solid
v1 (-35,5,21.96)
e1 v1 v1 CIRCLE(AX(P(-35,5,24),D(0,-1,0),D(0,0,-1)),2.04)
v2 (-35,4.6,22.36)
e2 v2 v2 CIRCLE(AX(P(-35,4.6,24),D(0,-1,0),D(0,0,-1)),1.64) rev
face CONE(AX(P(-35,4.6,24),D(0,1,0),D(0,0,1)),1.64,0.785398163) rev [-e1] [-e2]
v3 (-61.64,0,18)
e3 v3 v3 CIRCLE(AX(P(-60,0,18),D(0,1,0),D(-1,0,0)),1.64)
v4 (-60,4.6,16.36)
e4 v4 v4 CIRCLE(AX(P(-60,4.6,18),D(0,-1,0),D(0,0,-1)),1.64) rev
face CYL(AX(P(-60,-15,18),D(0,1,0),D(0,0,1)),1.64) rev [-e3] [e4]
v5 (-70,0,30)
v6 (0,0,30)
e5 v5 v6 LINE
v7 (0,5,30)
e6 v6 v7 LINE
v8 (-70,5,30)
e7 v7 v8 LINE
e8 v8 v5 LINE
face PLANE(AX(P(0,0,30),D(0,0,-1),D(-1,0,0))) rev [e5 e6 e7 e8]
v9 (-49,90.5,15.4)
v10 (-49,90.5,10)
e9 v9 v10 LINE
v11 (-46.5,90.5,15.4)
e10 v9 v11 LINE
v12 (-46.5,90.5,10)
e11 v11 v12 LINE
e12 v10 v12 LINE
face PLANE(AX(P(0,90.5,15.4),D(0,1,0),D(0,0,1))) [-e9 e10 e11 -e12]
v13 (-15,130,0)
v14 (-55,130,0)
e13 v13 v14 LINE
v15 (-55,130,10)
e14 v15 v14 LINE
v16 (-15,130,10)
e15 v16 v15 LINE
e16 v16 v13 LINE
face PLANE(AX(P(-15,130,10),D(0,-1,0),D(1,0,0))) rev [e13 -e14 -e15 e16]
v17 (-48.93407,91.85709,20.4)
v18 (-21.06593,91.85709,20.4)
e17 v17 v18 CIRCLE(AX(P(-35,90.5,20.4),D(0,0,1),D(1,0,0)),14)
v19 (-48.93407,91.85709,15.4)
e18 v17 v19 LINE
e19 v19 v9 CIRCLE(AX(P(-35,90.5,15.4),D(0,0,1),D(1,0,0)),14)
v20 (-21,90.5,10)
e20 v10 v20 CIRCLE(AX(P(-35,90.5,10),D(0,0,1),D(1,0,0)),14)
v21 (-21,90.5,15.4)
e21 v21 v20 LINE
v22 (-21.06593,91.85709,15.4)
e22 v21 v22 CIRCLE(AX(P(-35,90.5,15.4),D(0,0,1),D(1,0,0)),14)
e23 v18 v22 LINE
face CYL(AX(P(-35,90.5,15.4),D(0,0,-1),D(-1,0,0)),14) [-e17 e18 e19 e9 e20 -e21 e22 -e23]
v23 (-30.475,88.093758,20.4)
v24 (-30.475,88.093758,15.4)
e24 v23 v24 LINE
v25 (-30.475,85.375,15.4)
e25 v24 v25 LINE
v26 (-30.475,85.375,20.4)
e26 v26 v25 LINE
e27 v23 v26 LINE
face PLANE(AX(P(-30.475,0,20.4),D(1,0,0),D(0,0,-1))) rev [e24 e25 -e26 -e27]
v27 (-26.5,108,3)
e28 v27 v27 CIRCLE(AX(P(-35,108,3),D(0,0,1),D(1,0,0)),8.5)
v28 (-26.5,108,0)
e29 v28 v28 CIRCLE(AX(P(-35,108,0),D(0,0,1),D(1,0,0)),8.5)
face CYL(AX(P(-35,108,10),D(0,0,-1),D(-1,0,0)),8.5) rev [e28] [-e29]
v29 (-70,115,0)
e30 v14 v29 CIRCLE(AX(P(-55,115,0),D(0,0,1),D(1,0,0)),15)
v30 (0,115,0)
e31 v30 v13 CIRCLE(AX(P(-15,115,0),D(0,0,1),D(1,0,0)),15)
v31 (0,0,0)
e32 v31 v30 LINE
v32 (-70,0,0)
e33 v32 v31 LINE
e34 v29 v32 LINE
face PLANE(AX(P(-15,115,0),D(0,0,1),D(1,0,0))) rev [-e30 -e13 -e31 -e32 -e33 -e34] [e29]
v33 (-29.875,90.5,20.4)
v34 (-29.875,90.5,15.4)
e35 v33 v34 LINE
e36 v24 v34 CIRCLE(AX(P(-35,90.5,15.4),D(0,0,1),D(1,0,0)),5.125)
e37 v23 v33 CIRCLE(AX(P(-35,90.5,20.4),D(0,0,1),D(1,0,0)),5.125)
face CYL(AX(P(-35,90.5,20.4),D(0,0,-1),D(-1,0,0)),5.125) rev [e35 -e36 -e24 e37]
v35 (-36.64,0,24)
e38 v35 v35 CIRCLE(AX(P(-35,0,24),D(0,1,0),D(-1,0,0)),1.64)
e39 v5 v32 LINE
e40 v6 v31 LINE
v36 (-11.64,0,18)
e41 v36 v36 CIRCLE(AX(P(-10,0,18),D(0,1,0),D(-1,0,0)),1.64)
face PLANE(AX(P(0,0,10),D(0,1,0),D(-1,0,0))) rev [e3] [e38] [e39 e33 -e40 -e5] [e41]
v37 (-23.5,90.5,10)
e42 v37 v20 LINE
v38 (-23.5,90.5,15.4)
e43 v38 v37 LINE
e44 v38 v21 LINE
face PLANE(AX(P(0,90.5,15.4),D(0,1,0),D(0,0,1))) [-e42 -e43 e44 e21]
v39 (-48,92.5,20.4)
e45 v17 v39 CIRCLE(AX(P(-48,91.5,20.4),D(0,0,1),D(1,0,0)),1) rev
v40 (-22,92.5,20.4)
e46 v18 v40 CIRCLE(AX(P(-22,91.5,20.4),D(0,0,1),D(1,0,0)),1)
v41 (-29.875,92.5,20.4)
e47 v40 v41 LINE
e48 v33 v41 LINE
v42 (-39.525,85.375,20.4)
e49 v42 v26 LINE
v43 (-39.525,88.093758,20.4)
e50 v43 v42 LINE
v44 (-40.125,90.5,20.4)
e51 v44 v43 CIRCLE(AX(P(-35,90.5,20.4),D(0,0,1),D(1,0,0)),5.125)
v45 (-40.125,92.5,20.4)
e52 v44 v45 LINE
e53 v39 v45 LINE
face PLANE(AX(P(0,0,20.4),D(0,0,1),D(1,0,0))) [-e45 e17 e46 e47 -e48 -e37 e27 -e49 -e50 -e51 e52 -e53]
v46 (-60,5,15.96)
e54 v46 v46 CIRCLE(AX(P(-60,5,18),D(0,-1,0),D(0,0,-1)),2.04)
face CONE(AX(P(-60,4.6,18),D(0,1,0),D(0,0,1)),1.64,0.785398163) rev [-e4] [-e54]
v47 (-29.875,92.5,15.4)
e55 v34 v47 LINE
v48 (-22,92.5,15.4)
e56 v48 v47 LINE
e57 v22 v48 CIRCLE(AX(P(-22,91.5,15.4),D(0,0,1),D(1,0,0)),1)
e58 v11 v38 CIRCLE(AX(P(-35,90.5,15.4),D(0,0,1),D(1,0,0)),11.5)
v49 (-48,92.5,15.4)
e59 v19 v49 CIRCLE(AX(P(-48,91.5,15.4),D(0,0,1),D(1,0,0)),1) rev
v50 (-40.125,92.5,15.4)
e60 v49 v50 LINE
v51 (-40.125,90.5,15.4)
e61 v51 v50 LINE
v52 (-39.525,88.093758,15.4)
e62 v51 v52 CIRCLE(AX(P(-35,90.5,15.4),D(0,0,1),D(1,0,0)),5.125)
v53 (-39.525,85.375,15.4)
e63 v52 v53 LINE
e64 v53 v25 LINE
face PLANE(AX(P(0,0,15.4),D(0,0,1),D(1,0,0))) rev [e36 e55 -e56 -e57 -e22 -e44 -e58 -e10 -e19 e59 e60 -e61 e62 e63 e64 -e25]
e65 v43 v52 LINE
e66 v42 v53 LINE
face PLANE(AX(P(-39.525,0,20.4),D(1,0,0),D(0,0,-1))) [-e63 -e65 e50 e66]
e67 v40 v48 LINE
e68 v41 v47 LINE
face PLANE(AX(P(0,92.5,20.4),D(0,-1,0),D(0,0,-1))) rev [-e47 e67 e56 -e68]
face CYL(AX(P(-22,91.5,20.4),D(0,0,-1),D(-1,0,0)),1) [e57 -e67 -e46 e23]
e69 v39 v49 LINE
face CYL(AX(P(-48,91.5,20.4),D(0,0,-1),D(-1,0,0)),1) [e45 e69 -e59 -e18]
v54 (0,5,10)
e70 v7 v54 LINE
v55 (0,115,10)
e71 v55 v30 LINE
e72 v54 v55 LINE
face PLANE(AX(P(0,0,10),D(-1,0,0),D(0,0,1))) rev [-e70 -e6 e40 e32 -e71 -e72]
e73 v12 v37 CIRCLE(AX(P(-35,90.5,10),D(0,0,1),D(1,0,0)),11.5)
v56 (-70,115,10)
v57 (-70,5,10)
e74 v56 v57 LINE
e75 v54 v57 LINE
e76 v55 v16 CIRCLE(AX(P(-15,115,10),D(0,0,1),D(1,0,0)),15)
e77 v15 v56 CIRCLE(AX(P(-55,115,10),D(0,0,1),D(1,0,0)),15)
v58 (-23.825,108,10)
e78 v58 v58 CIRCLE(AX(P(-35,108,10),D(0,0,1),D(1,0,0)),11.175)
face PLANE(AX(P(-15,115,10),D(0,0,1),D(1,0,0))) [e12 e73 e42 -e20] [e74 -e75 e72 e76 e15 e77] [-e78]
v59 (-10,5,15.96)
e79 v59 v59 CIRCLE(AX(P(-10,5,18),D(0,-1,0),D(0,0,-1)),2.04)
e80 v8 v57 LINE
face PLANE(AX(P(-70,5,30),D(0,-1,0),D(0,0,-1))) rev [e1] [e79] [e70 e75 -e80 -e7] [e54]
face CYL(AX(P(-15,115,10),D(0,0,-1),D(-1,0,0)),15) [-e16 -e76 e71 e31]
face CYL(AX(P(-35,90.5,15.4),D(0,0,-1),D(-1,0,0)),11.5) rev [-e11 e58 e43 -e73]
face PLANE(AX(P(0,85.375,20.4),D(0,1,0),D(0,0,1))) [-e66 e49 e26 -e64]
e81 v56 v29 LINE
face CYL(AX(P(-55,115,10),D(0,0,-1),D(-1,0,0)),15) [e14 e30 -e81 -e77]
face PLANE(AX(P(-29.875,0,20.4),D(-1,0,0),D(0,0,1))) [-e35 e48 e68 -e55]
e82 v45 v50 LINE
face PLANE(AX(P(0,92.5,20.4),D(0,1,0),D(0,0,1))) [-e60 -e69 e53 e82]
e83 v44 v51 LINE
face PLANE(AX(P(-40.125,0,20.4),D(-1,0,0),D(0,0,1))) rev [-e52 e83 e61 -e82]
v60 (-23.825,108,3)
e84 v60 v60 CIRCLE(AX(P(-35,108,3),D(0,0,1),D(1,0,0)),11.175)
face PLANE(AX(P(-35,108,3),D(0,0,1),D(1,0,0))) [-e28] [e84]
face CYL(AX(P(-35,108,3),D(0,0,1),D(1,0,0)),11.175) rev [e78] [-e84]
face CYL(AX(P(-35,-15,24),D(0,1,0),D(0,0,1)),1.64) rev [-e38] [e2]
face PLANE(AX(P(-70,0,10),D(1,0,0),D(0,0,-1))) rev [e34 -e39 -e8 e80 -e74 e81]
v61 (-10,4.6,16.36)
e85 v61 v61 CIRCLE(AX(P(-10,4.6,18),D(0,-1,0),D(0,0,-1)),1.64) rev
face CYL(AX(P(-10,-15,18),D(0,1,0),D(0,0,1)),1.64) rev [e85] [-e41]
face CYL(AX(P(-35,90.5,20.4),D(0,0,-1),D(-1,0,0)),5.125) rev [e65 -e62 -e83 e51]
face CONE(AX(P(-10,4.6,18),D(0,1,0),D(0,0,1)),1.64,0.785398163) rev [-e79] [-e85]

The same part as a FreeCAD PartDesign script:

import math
import FreeCAD as App
import Part
import Sketcher
Q = App.Units.Quantity


def edges_at(feature, points):
    """Names of the edges that pass closest to the given points."""
    edges = feature.Shape.Edges
    near = lambda p: min(range(len(edges)), key=lambda i: edges[i].distToShape(Part.Vertex(*p))[0])
    return sorted({f"Edge{near(p) + 1}" for p in points})

doc = App.newDocument("Part")
params = doc.addObject("Spreadsheet::Sheet", "Params")
for row, (alias, value) in enumerate([
    ("sketch1_diameter", "17 mm"),
    ("sketch1_radius", "15 mm"),
    ("sketch1_width", "70 mm"),
    ("sketch1_height", "115 mm"),
    ("pad1_length", "10 mm"),
    ("sketch2_diameter", "22.35 mm"),
    ("pocket1_length", "7 mm"),
    ("sketch3_width", "70 mm"),
    ("sketch3_height", "5 mm"),
    ("pad2_length", "20 mm"),
    ("sketch4_diameter", "3.28 mm"),
    ("pocket2_length", "20 mm"),
    ("chamfer_size", "0.4 mm"),
    ("chamfer2_size", "0.4 mm"),
    ("sketch5_radius", "14 mm"),
    ("sketch5_radius2", "11.5 mm"),
    ("pad3_length", "5.4 mm"),
    ("sketch6_radius", "14 mm"),
    ("sketch6_radius2", "1 mm"),
    ("sketch6_height", "2 mm"),
    ("sketch6_width", "9.05 mm"),
    ("pad4_length", "5 mm"),
], start=1):
    params.set(f"A{row}", alias)
    params.set(f"B{row}", "=" + value)
    params.setAlias(f"B{row}", alias)

body = doc.addObject("PartDesign::Body", "Body")

# Sketch on XY plane
sketch1 = body.newObject("Sketcher::SketchObject", "Sketch")
sketch1.AttachmentSupport = (doc.getObject("XY_Plane"), [""])
sketch1.MapMode = "FlatFace"
sketch1.addGeometry(Part.LineSegment(App.Vector(-70, 0, 0), App.Vector(0, 0, 0)), False)
sketch1.addGeometry(Part.LineSegment(App.Vector(0, 0, 0), App.Vector(0, 115, 0)), False)
sketch1.addGeometry(Part.ArcOfCircle(Part.Circle(App.Vector(-15, 115, 0), App.Vector(0, 0, 1), 15), math.radians(0), math.radians(90)), False)
sketch1.addGeometry(Part.LineSegment(App.Vector(-15, 130, 0), App.Vector(-55, 130, 0)), False)
sketch1.addGeometry(Part.ArcOfCircle(Part.Circle(App.Vector(-55, 115, 0), App.Vector(0, 0, 1), 15), math.radians(90), math.radians(180)), False)
sketch1.addGeometry(Part.LineSegment(App.Vector(-70, 115, 0), App.Vector(-70, 0, 0)), False)
sketch1.addGeometry(Part.Circle(App.Vector(-35, 108, 0), App.Vector(0, 0, 1), 8), False)
sketch1.addConstraint(Sketcher.Constraint("Coincident", 0, 2, 1, 1))
sketch1.addConstraint(Sketcher.Constraint("Tangent", 1, 2, 2, 1))
sketch1.addConstraint(Sketcher.Constraint("Tangent", 2, 2, 3, 1))
sketch1.addConstraint(Sketcher.Constraint("Tangent", 3, 2, 4, 1))
sketch1.addConstraint(Sketcher.Constraint("Tangent", 4, 2, 5, 1))
sketch1.addConstraint(Sketcher.Constraint("Coincident", 5, 2, 0, 1))
sketch1.addConstraint(Sketcher.Constraint("Horizontal", 0))
sketch1.addConstraint(Sketcher.Constraint("Vertical", 1))
sketch1.addConstraint(Sketcher.Constraint("Horizontal", 3))
sketch1.addConstraint(Sketcher.Constraint("Vertical", 5))
sketch1.addConstraint(Sketcher.Constraint("Coincident", 0, 2, -1, 1))
sketch1.addConstraint(Sketcher.Constraint("Equal", 2, 4))
sketch1.addConstraint(Sketcher.Constraint("Diameter", 6, Q("17 mm")))
sketch1.addConstraint(Sketcher.Constraint("Radius", 2, Q("15 mm")))
sketch1.addConstraint(Sketcher.Constraint("DistanceX", 0, 1, 0, 2, Q("70 mm")))
sketch1.addConstraint(Sketcher.Constraint("DistanceY", 1, 1, 1, 2, Q("115 mm")))
sketch1.addConstraint(Sketcher.Constraint("DistanceX", 6, 3, -1, 1, Q("35 mm")))
sketch1.addConstraint(Sketcher.Constraint("DistanceY", -1, 1, 6, 3, Q("108 mm")))
sketch1.setExpression("Constraints[12]", "Params.sketch1_diameter")
sketch1.setExpression("Constraints[13]", "Params.sketch1_radius")
sketch1.setExpression("Constraints[14]", "Params.sketch1_width")
sketch1.setExpression("Constraints[15]", "Params.sketch1_height")
pad1 = body.newObject("PartDesign::Pad", "Pad")
pad1.Profile = sketch1
pad1.setExpression("Length", "Params.pad1_length")

# Sketch on XY plane
sketch2 = body.newObject("Sketcher::SketchObject", "Sketch001")
sketch2.AttachmentSupport = (doc.getObject("XY_Plane"), [""])
sketch2.MapMode = "FlatFace"
sketch2.AttachmentOffset = App.Placement(App.Vector(0, 0, 10), App.Rotation())
sketch2.addGeometry(Part.Circle(App.Vector(-35, 108, 0), App.Vector(0, 0, 1), 11), False)
sketch2.addConstraint(Sketcher.Constraint("Diameter", 0, Q("22.35 mm")))
sketch2.addConstraint(Sketcher.Constraint("DistanceX", 0, 3, -1, 1, Q("35 mm")))
sketch2.addConstraint(Sketcher.Constraint("DistanceY", -1, 1, 0, 3, Q("108 mm")))
sketch2.setExpression("Constraints[0]", "Params.sketch2_diameter")
pocket1 = body.newObject("PartDesign::Pocket", "Pocket")
pocket1.Profile = sketch2
pocket1.setExpression("Length", "Params.pocket1_length")

# Sketch on XY plane
sketch3 = body.newObject("Sketcher::SketchObject", "Sketch002")
sketch3.AttachmentSupport = (doc.getObject("XY_Plane"), [""])
sketch3.MapMode = "FlatFace"
sketch3.AttachmentOffset = App.Placement(App.Vector(0, 0, 10), App.Rotation())
sketch3.addGeometry(Part.LineSegment(App.Vector(-70, 5, 0), App.Vector(-70, 0, 0)), False)
sketch3.addGeometry(Part.LineSegment(App.Vector(-70, 0, 0), App.Vector(0, 0, 0)), False)
sketch3.addGeometry(Part.LineSegment(App.Vector(0, 0, 0), App.Vector(0, 5, 0)), False)
sketch3.addGeometry(Part.LineSegment(App.Vector(0, 5, 0), App.Vector(-70, 5, 0)), False)
sketch3.addConstraint(Sketcher.Constraint("Coincident", 0, 2, 1, 1))
sketch3.addConstraint(Sketcher.Constraint("Coincident", 1, 2, 2, 1))
sketch3.addConstraint(Sketcher.Constraint("Coincident", 2, 2, 3, 1))
sketch3.addConstraint(Sketcher.Constraint("Coincident", 3, 2, 0, 1))
sketch3.addConstraint(Sketcher.Constraint("Vertical", 0))
sketch3.addConstraint(Sketcher.Constraint("Horizontal", 1))
sketch3.addConstraint(Sketcher.Constraint("Vertical", 2))
sketch3.addConstraint(Sketcher.Constraint("Horizontal", 3))
sketch3.addConstraint(Sketcher.Constraint("Coincident", 1, 2, -1, 1))
sketch3.addConstraint(Sketcher.Constraint("DistanceX", 1, 1, 1, 2, Q("70 mm")))
sketch3.addConstraint(Sketcher.Constraint("DistanceY", 0, 2, 0, 1, Q("5 mm")))
sketch3.setExpression("Constraints[9]", "Params.sketch3_width")
sketch3.setExpression("Constraints[10]", "Params.sketch3_height")
pad2 = body.newObject("PartDesign::Pad", "Pad001")
pad2.Profile = sketch3
pad2.setExpression("Length", "Params.pad2_length")

# Sketch on XZ plane
sketch4 = body.newObject("Sketcher::SketchObject", "Sketch003")
sketch4.AttachmentSupport = (doc.getObject("XZ_Plane"), [""])
sketch4.MapMode = "FlatFace"
sketch4.AttachmentOffset = App.Placement(App.Vector(0, 0, -5), App.Rotation())
sketch4.addGeometry(Part.Circle(App.Vector(-60, 18, 0), App.Vector(0, 0, 1), 1.6), False)
sketch4.addGeometry(Part.Circle(App.Vector(-35, 24, 0), App.Vector(0, 0, 1), 1.6), False)
sketch4.addGeometry(Part.Circle(App.Vector(-10, 18, 0), App.Vector(0, 0, 1), 1.6), False)
sketch4.addConstraint(Sketcher.Constraint("Equal", 0, 1))
sketch4.addConstraint(Sketcher.Constraint("Equal", 1, 2))
sketch4.addConstraint(Sketcher.Constraint("Horizontal", 0, 3, 2, 3))
sketch4.addConstraint(Sketcher.Constraint("Diameter", 0, Q("3.28 mm")))
sketch4.addConstraint(Sketcher.Constraint("DistanceX", 0, 3, -1, 1, Q("60 mm")))
sketch4.addConstraint(Sketcher.Constraint("DistanceY", -1, 1, 0, 3, Q("18 mm")))
sketch4.addConstraint(Sketcher.Constraint("DistanceX", 1, 3, -1, 1, Q("35 mm")))
sketch4.addConstraint(Sketcher.Constraint("DistanceY", -1, 1, 1, 3, Q("24 mm")))
sketch4.addConstraint(Sketcher.Constraint("DistanceX", 2, 3, -1, 1, Q("10 mm")))
sketch4.setExpression("Constraints[3]", "Params.sketch4_diameter")
pocket2 = body.newObject("PartDesign::Pocket", "Pocket001")
pocket2.Profile = sketch4
pocket2.setExpression("Length", "Params.pocket2_length")
pocket2.Reversed = True
doc.recompute()

chamfer = body.newObject("PartDesign::Chamfer", "Chamfer")
chamfer.Base = (pocket2, edges_at(pocket2, [(-35, 5, 22.36)]))
chamfer.setExpression("Size", "Params.chamfer_size")
doc.recompute()

chamfer2 = body.newObject("PartDesign::Chamfer", "Chamfer001")
chamfer2.Base = (chamfer, edges_at(chamfer, [(-60, 5, 16.36), (-10, 5, 16.36)]))
chamfer2.setExpression("Size", "Params.chamfer2_size")

# Sketch on XY plane
sketch5 = body.newObject("Sketcher::SketchObject", "Sketch004")
sketch5.AttachmentSupport = (doc.getObject("XY_Plane"), [""])
sketch5.MapMode = "FlatFace"
sketch5.AttachmentOffset = App.Placement(App.Vector(0, 0, 10), App.Rotation())
sketch5.addGeometry(Part.LineSegment(App.Vector(-21, 90.5, 0), App.Vector(-23.5, 90.5, 0)), False)
sketch5.addGeometry(Part.ArcOfCircle(Part.Circle(App.Vector(-35, 90.5, 0), App.Vector(0, 0, 1), 11.5), math.radians(180), math.radians(360)), False)
sketch5.addGeometry(Part.LineSegment(App.Vector(-46.5, 90.5, 0), App.Vector(-49, 90.5, 0)), False)
sketch5.addGeometry(Part.ArcOfCircle(Part.Circle(App.Vector(-35, 90.5, 0), App.Vector(0, 0, 1), 14), math.radians(180), math.radians(360)), False)
sketch5.addConstraint(Sketcher.Constraint("Coincident", 0, 2, 1, 2))
sketch5.addConstraint(Sketcher.Constraint("Coincident", 1, 1, 2, 1))
sketch5.addConstraint(Sketcher.Constraint("Coincident", 2, 2, 3, 1))
sketch5.addConstraint(Sketcher.Constraint("Coincident", 3, 2, 0, 1))
sketch5.addConstraint(Sketcher.Constraint("Horizontal", 0))
sketch5.addConstraint(Sketcher.Constraint("Horizontal", 2))
sketch5.addConstraint(Sketcher.Constraint("Coincident", 3, 3, 1, 3))
sketch5.addConstraint(Sketcher.Constraint("Horizontal", 3, 3, 0, 2))
sketch5.addConstraint(Sketcher.Constraint("Horizontal", 0, 2, 1, 1))
sketch5.addConstraint(Sketcher.Constraint("Radius", 3, Q("14 mm")))
sketch5.addConstraint(Sketcher.Constraint("Radius", 1, Q("11.5 mm")))
sketch5.addConstraint(Sketcher.Constraint("DistanceX", 1, 3, -1, 1, Q("35 mm")))
sketch5.addConstraint(Sketcher.Constraint("DistanceY", -1, 1, 1, 3, Q("90.5 mm")))
sketch5.setExpression("Constraints[9]", "Params.sketch5_radius")
sketch5.setExpression("Constraints[10]", "Params.sketch5_radius2")
pad3 = body.newObject("PartDesign::Pad", "Pad002")
pad3.Profile = sketch5
pad3.setExpression("Length", "Params.pad3_length")

# Sketch on XY plane
sketch6 = body.newObject("Sketcher::SketchObject", "Sketch005")
sketch6.AttachmentSupport = (doc.getObject("XY_Plane"), [""])
sketch6.MapMode = "FlatFace"
sketch6.AttachmentOffset = App.Placement(App.Vector(0, 0, 15.4), App.Rotation())
sketch6.addGeometry(Part.ArcOfCircle(Part.Circle(App.Vector(-35, 90.5, 0), App.Vector(0, 0, 1), 14), math.radians(180), math.radians(360)), False)
sketch6.addGeometry(Part.ArcOfCircle(Part.Circle(App.Vector(-35, 90.5, 0), App.Vector(0, 0, 1), 14), math.radians(0), math.radians(5.56)), False)
sketch6.addGeometry(Part.ArcOfCircle(Part.Circle(App.Vector(-22, 91.5, 0), App.Vector(0, 0, 1), 1), math.radians(21), math.radians(90)), False)
sketch6.addGeometry(Part.LineSegment(App.Vector(-22, 92.5, 0), App.Vector(-29.9, 92.5, 0)), False)
sketch6.addGeometry(Part.LineSegment(App.Vector(-29.9, 92.5, 0), App.Vector(-29.9, 90.5, 0)), False)
sketch6.addGeometry(Part.ArcOfCircle(Part.Circle(App.Vector(-35, 90.5, 0), App.Vector(0, 0, 1), 5.1), math.radians(-28), math.radians(0)), False)
sketch6.addGeometry(Part.LineSegment(App.Vector(-30.5, 88.1, 0), App.Vector(-30.5, 85.4, 0)), False)
sketch6.addGeometry(Part.LineSegment(App.Vector(-30.5, 85.4, 0), App.Vector(-39.5, 85.4, 0)), False)
sketch6.addGeometry(Part.LineSegment(App.Vector(-39.5, 85.4, 0), App.Vector(-39.5, 88.1, 0)), False)
sketch6.addGeometry(Part.ArcOfCircle(Part.Circle(App.Vector(-35, 90.5, 0), App.Vector(0, 0, 1), 5.1), math.radians(-180), math.radians(-152)), False)
sketch6.addGeometry(Part.LineSegment(App.Vector(-40.1, 90.5, 0), App.Vector(-40.1, 92.5, 0)), False)
sketch6.addGeometry(Part.LineSegment(App.Vector(-40.1, 92.5, 0), App.Vector(-48, 92.5, 0)), False)
sketch6.addGeometry(Part.ArcOfCircle(Part.Circle(App.Vector(-48, 91.5, 0), App.Vector(0, 0, 1), 1), math.radians(90), math.radians(159)), False)
sketch6.addGeometry(Part.ArcOfCircle(Part.Circle(App.Vector(-35, 90.5, 0), App.Vector(0, 0, 1), 14), math.radians(174.44), math.radians(180)), False)
sketch6.addConstraint(Sketcher.Constraint("Tangent", 0, 2, 1, 1))
sketch6.addConstraint(Sketcher.Constraint("Coincident", 1, 2, 2, 1))
sketch6.addConstraint(Sketcher.Constraint("Tangent", 2, 2, 3, 1))
sketch6.addConstraint(Sketcher.Constraint("Coincident", 3, 2, 4, 1))
sketch6.addConstraint(Sketcher.Constraint("Tangent", 4, 2, 5, 2))
sketch6.addConstraint(Sketcher.Constraint("Coincident", 5, 1, 6, 1))
sketch6.addConstraint(Sketcher.Constraint("Coincident", 6, 2, 7, 1))
sketch6.addConstraint(Sketcher.Constraint("Coincident", 7, 2, 8, 1))
sketch6.addConstraint(Sketcher.Constraint("Coincident", 8, 2, 9, 2))
sketch6.addConstraint(Sketcher.Constraint("Tangent", 9, 1, 10, 1))
sketch6.addConstraint(Sketcher.Constraint("Coincident", 10, 2, 11, 1))
sketch6.addConstraint(Sketcher.Constraint("Tangent", 11, 2, 12, 1))
sketch6.addConstraint(Sketcher.Constraint("Coincident", 12, 2, 13, 1))
sketch6.addConstraint(Sketcher.Constraint("Tangent", 13, 2, 0, 1))
sketch6.addConstraint(Sketcher.Constraint("Horizontal", 3))
sketch6.addConstraint(Sketcher.Constraint("Vertical", 4))
sketch6.addConstraint(Sketcher.Constraint("Vertical", 6))
sketch6.addConstraint(Sketcher.Constraint("Horizontal", 7))
sketch6.addConstraint(Sketcher.Constraint("Vertical", 8))
sketch6.addConstraint(Sketcher.Constraint("Vertical", 10))
sketch6.addConstraint(Sketcher.Constraint("Horizontal", 11))
sketch6.addConstraint(Sketcher.Constraint("Coincident", 5, 3, 0, 3))
sketch6.addConstraint(Sketcher.Constraint("Coincident", 9, 3, 0, 3))
sketch6.addConstraint(Sketcher.Constraint("Equal", 0, 1))
sketch6.addConstraint(Sketcher.Constraint("Equal", 5, 9))
sketch6.addConstraint(Sketcher.Constraint("Equal", 2, 12))
sketch6.addConstraint(Sketcher.Constraint("Equal", 1, 13))
sketch6.addConstraint(Sketcher.Constraint("Horizontal", 2, 3, 12, 3))
sketch6.addConstraint(Sketcher.Constraint("Horizontal", 13, 3, 0, 2))
sketch6.addConstraint(Sketcher.Constraint("Horizontal", 5, 1, 8, 2))
sketch6.addConstraint(Sketcher.Constraint("Horizontal", 1, 2, 12, 2))
sketch6.addConstraint(Sketcher.Constraint("Horizontal", 9, 1, 13, 2))
sketch6.addConstraint(Sketcher.Constraint("Radius", 0, Q("14 mm")))
sketch6.addConstraint(Sketcher.Constraint("Radius", 2, Q("1 mm")))
sketch6.addConstraint(Sketcher.Constraint("DistanceY", 4, 2, 4, 1, Q("2 mm")))
sketch6.addConstraint(Sketcher.Constraint("DistanceX", 0, 3, -1, 1, Q("35 mm")))
sketch6.addConstraint(Sketcher.Constraint("DistanceX", 2, 3, -1, 1, Q("22 mm")))
sketch6.addConstraint(Sketcher.Constraint("Radius", 5, Q("5.125 mm")))
sketch6.addConstraint(Sketcher.Constraint("DistanceX", 7, 2, 7, 1, Q("9.05 mm")))
sketch6.addConstraint(Sketcher.Constraint("DistanceY", -1, 1, 0, 3, Q("90.5 mm")))
sketch6.addConstraint(Sketcher.Constraint("DistanceY", -1, 1, 6, 2, Q("85.375 mm")))
sketch6.setExpression("Constraints[32]", "Params.sketch6_radius")
sketch6.setExpression("Constraints[33]", "Params.sketch6_radius2")
sketch6.setExpression("Constraints[34]", "Params.sketch6_height")
sketch6.setExpression("Constraints[38]", "Params.sketch6_width")
pad4 = body.newObject("PartDesign::Pad", "Pad003")
pad4.Profile = sketch6
pad4.setExpression("Length", "Params.pad4_length")

doc.recompute()
